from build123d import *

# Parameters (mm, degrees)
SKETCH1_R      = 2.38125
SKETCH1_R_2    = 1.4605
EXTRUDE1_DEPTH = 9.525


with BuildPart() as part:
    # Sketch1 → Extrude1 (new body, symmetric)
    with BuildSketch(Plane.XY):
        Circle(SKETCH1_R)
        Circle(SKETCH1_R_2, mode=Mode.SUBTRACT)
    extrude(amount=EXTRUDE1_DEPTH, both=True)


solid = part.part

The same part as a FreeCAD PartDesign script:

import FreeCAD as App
import Part
import Sketcher
from FreeCAD import Vector
Q = App.Units.Quantity

doc = App.newDocument("Part")
body = doc.addObject("PartDesign::Body", "Body")

sketch1 = body.newObject("Sketcher::SketchObject", "Sketch")
sketch1.AttachmentSupport = (doc.getObject("XY_Plane"), [""])
sketch1.MapMode = "FlatFace"
sketch1.addGeometry(Part.Circle(Vector(0, 0, 0), Vector(0, 0, 1), 2.4), False)
sketch1.addGeometry(Part.Circle(Vector(0, 0, 0), Vector(0, 0, 1), 1.5), False)
sketch1.addConstraint(Sketcher.Constraint("Coincident", 0, 3, -1, 1))
sketch1.addConstraint(Sketcher.Constraint("Coincident", 1, 3, -1, 1))
sketch1.addConstraint(Sketcher.Constraint("Diameter", 0, Q("0.1875 in")))
sketch1.addConstraint(Sketcher.Constraint("Diameter", 1, Q("0.115 in")))
pad1 = body.newObject("PartDesign::Pad", "Pad")
pad1.Profile = sketch1
pad1.Length = Q("0.75 in")
pad1.Midplane = True

doc.recompute()
